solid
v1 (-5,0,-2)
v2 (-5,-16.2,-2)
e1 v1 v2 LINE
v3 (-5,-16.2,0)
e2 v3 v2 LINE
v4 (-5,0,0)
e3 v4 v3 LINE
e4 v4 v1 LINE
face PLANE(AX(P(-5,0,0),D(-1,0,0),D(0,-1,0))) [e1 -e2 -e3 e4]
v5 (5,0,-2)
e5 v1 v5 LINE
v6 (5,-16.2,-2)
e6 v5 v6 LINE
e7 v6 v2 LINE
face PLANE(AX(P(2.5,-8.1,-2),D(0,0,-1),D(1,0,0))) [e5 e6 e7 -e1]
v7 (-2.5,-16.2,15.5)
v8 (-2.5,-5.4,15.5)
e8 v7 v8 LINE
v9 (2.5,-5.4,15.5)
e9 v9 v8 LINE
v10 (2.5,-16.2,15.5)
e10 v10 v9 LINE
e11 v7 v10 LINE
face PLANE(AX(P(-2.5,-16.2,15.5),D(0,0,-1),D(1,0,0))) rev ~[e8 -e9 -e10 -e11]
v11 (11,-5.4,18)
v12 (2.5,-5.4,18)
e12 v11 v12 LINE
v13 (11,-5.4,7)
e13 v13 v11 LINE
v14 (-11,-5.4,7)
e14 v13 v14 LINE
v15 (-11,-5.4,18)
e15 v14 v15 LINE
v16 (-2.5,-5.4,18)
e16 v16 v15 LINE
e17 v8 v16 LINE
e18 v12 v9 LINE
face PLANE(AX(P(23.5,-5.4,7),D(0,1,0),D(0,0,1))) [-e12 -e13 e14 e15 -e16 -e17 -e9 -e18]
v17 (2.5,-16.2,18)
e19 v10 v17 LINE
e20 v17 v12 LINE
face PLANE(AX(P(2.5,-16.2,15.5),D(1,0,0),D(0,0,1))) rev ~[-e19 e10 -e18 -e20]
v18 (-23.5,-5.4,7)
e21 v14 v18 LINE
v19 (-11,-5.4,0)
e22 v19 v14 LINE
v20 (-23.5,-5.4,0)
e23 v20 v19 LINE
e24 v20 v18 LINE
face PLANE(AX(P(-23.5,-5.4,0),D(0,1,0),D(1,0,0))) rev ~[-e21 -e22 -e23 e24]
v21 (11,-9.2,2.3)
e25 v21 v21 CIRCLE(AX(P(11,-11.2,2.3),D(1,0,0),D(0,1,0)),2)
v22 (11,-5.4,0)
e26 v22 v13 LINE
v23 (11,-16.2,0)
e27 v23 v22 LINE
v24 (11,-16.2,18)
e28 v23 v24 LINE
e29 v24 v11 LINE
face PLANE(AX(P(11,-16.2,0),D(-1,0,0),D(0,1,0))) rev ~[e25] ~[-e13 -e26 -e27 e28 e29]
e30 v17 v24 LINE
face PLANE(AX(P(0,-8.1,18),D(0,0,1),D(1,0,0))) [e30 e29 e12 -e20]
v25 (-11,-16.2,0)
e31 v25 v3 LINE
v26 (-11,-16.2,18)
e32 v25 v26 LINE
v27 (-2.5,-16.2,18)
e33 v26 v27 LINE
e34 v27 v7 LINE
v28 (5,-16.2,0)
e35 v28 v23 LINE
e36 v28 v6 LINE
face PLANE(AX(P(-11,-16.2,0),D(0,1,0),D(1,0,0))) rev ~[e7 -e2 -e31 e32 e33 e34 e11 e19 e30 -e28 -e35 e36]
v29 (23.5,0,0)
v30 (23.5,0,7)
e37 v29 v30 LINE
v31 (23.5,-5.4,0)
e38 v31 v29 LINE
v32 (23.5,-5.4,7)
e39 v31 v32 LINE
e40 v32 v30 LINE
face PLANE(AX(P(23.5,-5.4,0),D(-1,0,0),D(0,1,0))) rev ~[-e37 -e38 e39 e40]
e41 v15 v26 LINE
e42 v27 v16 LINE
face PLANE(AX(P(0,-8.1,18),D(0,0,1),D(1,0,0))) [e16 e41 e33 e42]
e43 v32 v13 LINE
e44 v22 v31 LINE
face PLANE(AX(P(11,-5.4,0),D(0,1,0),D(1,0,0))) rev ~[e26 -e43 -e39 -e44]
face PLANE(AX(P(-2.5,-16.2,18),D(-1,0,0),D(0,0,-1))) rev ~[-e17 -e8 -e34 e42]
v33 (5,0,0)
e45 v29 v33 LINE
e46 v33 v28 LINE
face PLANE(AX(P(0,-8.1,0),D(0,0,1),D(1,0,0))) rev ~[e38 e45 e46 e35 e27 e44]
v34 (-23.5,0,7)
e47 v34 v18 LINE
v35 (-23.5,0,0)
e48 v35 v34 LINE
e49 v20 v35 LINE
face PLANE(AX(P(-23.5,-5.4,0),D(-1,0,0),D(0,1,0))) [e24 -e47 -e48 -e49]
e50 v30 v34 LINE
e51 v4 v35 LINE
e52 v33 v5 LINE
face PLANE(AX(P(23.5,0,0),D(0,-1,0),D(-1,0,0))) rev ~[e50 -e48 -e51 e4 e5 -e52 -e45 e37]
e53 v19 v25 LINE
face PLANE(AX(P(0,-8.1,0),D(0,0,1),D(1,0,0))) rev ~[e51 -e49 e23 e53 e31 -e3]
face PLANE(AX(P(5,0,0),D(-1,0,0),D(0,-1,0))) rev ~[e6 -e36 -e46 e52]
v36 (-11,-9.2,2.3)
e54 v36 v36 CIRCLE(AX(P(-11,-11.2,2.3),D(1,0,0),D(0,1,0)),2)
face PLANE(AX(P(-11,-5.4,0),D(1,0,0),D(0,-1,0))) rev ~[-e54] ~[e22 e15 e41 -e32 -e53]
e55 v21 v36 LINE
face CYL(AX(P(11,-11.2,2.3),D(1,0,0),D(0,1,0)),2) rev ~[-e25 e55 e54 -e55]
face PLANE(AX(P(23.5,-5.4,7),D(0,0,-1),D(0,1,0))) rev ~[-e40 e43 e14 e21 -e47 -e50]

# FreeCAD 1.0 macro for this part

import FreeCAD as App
import Part
import Sketcher
from FreeCAD import Vector
Q = App.Units.Quantity

doc = App.newDocument("Part")
body = doc.addObject("PartDesign::Body", "Body")

# Sketch on XY plane
sketch1 = doc.addObject("Sketcher::SketchObject", "Sketch")
body.addObject(sketch1)
sketch1.AttachmentSupport = (doc.XY_Plane, [""])
sketch1.MapMode = "FlatFace"
sketch1.addGeometry([
    Part.LineSegment(Vector(-11, -5, 0), Vector(-11, -16, 0)),  # 0
    Part.LineSegment(Vector(-11, -16, 0), Vector(11, -16, 0)),  # 1
    Part.LineSegment(Vector(11, -16, 0), Vector(11, -5, 0)),  # 2
    Part.LineSegment(Vector(11, -5, 0), Vector(24, -5, 0)),  # 3
    Part.LineSegment(Vector(24, -5, 0), Vector(24, 0, 0)),  # 4
    Part.LineSegment(Vector(24, 0, 0), Vector(-24, 0, 0)),  # 5
    Part.LineSegment(Vector(-24, 0, 0), Vector(-24, -5, 0)),  # 6
    Part.LineSegment(Vector(-24, -5, 0), Vector(-11, -5, 0)),  # 7
], False)
sketch1.addConstraint([
    Sketcher.Constraint("Coincident", 0, 2, 1, 1),
    Sketcher.Constraint("Coincident", 1, 2, 2, 1),
    Sketcher.Constraint("Coincident", 2, 2, 3, 1),
    Sketcher.Constraint("Coincident", 3, 2, 4, 1),
    Sketcher.Constraint("Coincident", 4, 2, 5, 1),
    Sketcher.Constraint("Coincident", 5, 2, 6, 1),
    Sketcher.Constraint("Coincident", 6, 2, 7, 1),
    Sketcher.Constraint("Coincident", 7, 2, 0, 1),
    Sketcher.Constraint("Vertical", 0),
    Sketcher.Constraint("Horizontal", 1),
    Sketcher.Constraint("Vertical", 2),
    Sketcher.Constraint("Horizontal", 3),
    Sketcher.Constraint("Vertical", 4),
    Sketcher.Constraint("Horizontal", 5),
    Sketcher.Constraint("Vertical", 6),
    Sketcher.Constraint("Horizontal", 7),
    Sketcher.Constraint("Symmetric", 4, 2, 5, 2, -1, 1),
    Sketcher.Constraint("Symmetric", 2, 2, 7, 2, -2),
    Sketcher.Constraint("DistanceX", 1, 1, 1, 2, Q("22 mm")),
    Sketcher.Constraint("DistanceX", 5, 2, 5, 1, Q("47 mm")),
    Sketcher.Constraint("DistanceY", 0, 2, 0, 1, Q("10.8 mm")),
    Sketcher.Constraint("DistanceY", 4, 1, 4, 2, Q("5.4 mm")),
])
pad1 = doc.addObject("PartDesign::Pad", "Pad")
body.addObject(pad1)
pad1.Profile = sketch1
pad1.Length = 18

# Sketch on YZ plane
sketch2 = doc.addObject("Sketcher::SketchObject", "Sketch001")
body.addObject(sketch2)
sketch2.AttachmentSupport = (doc.YZ_Plane, [""])
sketch2.MapMode = "FlatFace"
sketch2.AttachmentOffset = App.Placement(Vector(0, 0, 11), App.Rotation())
sketch2.addGeometry(Part.Circle(Vector(-11.2, 2.3, 0), Vector(0, 0, 1), 2), False)
sketch2.addConstraint([
    Sketcher.Constraint("Diameter", 0, Q("4 mm")),
    Sketcher.Constraint("DistanceX", 0, 3, -1, 1, Q("11.2 mm")),
    Sketcher.Constraint("DistanceY", -1, 1, 0, 3, Q("2.3 mm")),
])
pocket1 = doc.addObject("PartDesign::Pocket", "Pocket")
body.addObject(pocket1)
pocket1.Profile = sketch2
pocket1.Type = "ThroughAll"

# Sketch on XY plane
sketch3 = doc.addObject("Sketcher::SketchObject", "Sketch002")
body.addObject(sketch3)
sketch3.AttachmentSupport = (doc.XY_Plane, [""])
sketch3.MapMode = "FlatFace"
sketch3.addGeometry([
    Part.LineSegment(Vector(5, 0, 0), Vector(5, -16, 0)),
    Part.LineSegment(Vector(5, -16, 0), Vector(-5, -16, 0)),
    Part.LineSegment(Vector(-5, -16, 0), Vector(-5, 0, 0)),
    Part.LineSegment(Vector(-5, 0, 0), Vector(5, 0, 0)),
], False)
sketch3.addConstraint([
    Sketcher.Constraint("Coincident", 0, 2, 1, 1),
    Sketcher.Constraint("Coincident", 1, 2, 2, 1),
    Sketcher.Constraint("Coincident", 2, 2, 3, 1),
    Sketcher.Constraint("Coincident", 3, 2, 0, 1),
    Sketcher.Constraint("Vertical", 0),
    Sketcher.Constraint("Horizontal", 1),
    Sketcher.Constraint("Vertical", 2),
    Sketcher.Constraint("Horizontal", 3),
    Sketcher.Constraint("Symmetric", 2, 2, 3, 2, -1, 1),
    Sketcher.Constraint("DistanceX", 1, 2, 1, 1, Q("10 mm")),
    Sketcher.Constraint("DistanceY", 0, 2, 0, 1, Q("16.2 mm")),
])
pad2 = doc.addObject("PartDesign::Pad", "Pad001")
body.addObject(pad2)
pad2.Profile = sketch3
pad2.Length = 2
pad2.Reversed = True

# Sketch on YZ plane
sketch4 = doc.addObject("Sketcher::SketchObject", "Sketch003")
body.addObject(sketch4)
sketch4.AttachmentSupport = (doc.YZ_Plane, [""])
sketch4.MapMode = "FlatFace"
sketch4.AttachmentOffset = App.Placement(Vector(0, 0, 23.5), App.Rotation())
sketch4.addGeometry([
    Part.LineSegment(Vector(-5, 18, 0), Vector(-5, 7, 0)),
    Part.LineSegment(Vector(-5, 7, 0), Vector(0, 7, 0)),
    Part.LineSegment(Vector(0, 7, 0), Vector(0, 18, 0)),
    Part.LineSegment(Vector(0, 18, 0), Vector(-5, 18, 0)),
], False)
sketch4.addConstraint([
    Sketcher.Constraint("Coincident", 0, 2, 1, 1),
    Sketcher.Constraint("Coincident", 1, 2, 2, 1),
    Sketcher.Constraint("Coincident", 2, 2, 3, 1),
    Sketcher.Constraint("Coincident", 3, 2, 0, 1),
    Sketcher.Constraint("Vertical", 0),
    Sketcher.Constraint("Horizontal", 1),
    Sketcher.Constraint("Vertical", 2),
    Sketcher.Constraint("Horizontal", 3),
    Sketcher.Constraint("PointOnObject", 1, 2, -2),
    Sketcher.Constraint("DistanceY", 0, 2, 0, 1, Q("11 mm")),
    Sketcher.Constraint("DistanceX", 1, 1, 1, 2, Q("5.4 mm")),
    Sketcher.Constraint("DistanceY", -1, 1, 0, 2, Q("7 mm")),
])
pocket2 = doc.addObject("PartDesign::Pocket", "Pocket001")
body.addObject(pocket2)
pocket2.Profile = sketch4
pocket2.Type = "ThroughAll"

# Sketch on XZ plane
sketch5 = doc.addObject("Sketcher::SketchObject", "Sketch004")
body.addObject(sketch5)
sketch5.AttachmentSupport = (doc.XZ_Plane, [""])
sketch5.MapMode = "FlatFace"
sketch5.AttachmentOffset = App.Placement(Vector(0, 0, 16.2), App.Rotation())
sketch5.addGeometry([
    Part.LineSegment(Vector(2.5, 18, 0), Vector(-2.5, 18, 0)),
    Part.LineSegment(Vector(-2.5, 18, 0), Vector(-2.5, 15.5, 0)),
    Part.LineSegment(Vector(-2.5, 15.5, 0), Vector(2.5, 15.5, 0)),
    Part.LineSegment(Vector(2.5, 15.5, 0), Vector(2.5, 18, 0)),
], False)
sketch5.addConstraint([
    Sketcher.Constraint("Coincident", 0, 2, 1, 1),
    Sketcher.Constraint("Coincident", 1, 2, 2, 1),
    Sketcher.Constraint("Coincident", 2, 2, 3, 1),
    Sketcher.Constraint("Coincident", 3, 2, 0, 1),
    Sketcher.Constraint("Horizontal", 0),
    Sketcher.Constraint("Vertical", 1),
    Sketcher.Constraint("Horizontal", 2),
    Sketcher.Constraint("Vertical", 3),
    Sketcher.Constraint("DistanceX", 0, 2, 0, 1, Q("5 mm")),
    Sketcher.Constraint("DistanceY", 1, 2, 1, 1, Q("2.5 mm")),
    Sketcher.Constraint("DistanceY", -1, 1, 0, 2, Q("18 mm")),
    Sketcher.Constraint("DistanceX", 0, 2, -1, 1, Q("2.5 mm")),
])
pocket3 = doc.addObject("PartDesign::Pocket", "Pocket002")
body.addObject(pocket3)
pocket3.Profile = sketch5
pocket3.Type = "ThroughAll"

doc.recompute()
